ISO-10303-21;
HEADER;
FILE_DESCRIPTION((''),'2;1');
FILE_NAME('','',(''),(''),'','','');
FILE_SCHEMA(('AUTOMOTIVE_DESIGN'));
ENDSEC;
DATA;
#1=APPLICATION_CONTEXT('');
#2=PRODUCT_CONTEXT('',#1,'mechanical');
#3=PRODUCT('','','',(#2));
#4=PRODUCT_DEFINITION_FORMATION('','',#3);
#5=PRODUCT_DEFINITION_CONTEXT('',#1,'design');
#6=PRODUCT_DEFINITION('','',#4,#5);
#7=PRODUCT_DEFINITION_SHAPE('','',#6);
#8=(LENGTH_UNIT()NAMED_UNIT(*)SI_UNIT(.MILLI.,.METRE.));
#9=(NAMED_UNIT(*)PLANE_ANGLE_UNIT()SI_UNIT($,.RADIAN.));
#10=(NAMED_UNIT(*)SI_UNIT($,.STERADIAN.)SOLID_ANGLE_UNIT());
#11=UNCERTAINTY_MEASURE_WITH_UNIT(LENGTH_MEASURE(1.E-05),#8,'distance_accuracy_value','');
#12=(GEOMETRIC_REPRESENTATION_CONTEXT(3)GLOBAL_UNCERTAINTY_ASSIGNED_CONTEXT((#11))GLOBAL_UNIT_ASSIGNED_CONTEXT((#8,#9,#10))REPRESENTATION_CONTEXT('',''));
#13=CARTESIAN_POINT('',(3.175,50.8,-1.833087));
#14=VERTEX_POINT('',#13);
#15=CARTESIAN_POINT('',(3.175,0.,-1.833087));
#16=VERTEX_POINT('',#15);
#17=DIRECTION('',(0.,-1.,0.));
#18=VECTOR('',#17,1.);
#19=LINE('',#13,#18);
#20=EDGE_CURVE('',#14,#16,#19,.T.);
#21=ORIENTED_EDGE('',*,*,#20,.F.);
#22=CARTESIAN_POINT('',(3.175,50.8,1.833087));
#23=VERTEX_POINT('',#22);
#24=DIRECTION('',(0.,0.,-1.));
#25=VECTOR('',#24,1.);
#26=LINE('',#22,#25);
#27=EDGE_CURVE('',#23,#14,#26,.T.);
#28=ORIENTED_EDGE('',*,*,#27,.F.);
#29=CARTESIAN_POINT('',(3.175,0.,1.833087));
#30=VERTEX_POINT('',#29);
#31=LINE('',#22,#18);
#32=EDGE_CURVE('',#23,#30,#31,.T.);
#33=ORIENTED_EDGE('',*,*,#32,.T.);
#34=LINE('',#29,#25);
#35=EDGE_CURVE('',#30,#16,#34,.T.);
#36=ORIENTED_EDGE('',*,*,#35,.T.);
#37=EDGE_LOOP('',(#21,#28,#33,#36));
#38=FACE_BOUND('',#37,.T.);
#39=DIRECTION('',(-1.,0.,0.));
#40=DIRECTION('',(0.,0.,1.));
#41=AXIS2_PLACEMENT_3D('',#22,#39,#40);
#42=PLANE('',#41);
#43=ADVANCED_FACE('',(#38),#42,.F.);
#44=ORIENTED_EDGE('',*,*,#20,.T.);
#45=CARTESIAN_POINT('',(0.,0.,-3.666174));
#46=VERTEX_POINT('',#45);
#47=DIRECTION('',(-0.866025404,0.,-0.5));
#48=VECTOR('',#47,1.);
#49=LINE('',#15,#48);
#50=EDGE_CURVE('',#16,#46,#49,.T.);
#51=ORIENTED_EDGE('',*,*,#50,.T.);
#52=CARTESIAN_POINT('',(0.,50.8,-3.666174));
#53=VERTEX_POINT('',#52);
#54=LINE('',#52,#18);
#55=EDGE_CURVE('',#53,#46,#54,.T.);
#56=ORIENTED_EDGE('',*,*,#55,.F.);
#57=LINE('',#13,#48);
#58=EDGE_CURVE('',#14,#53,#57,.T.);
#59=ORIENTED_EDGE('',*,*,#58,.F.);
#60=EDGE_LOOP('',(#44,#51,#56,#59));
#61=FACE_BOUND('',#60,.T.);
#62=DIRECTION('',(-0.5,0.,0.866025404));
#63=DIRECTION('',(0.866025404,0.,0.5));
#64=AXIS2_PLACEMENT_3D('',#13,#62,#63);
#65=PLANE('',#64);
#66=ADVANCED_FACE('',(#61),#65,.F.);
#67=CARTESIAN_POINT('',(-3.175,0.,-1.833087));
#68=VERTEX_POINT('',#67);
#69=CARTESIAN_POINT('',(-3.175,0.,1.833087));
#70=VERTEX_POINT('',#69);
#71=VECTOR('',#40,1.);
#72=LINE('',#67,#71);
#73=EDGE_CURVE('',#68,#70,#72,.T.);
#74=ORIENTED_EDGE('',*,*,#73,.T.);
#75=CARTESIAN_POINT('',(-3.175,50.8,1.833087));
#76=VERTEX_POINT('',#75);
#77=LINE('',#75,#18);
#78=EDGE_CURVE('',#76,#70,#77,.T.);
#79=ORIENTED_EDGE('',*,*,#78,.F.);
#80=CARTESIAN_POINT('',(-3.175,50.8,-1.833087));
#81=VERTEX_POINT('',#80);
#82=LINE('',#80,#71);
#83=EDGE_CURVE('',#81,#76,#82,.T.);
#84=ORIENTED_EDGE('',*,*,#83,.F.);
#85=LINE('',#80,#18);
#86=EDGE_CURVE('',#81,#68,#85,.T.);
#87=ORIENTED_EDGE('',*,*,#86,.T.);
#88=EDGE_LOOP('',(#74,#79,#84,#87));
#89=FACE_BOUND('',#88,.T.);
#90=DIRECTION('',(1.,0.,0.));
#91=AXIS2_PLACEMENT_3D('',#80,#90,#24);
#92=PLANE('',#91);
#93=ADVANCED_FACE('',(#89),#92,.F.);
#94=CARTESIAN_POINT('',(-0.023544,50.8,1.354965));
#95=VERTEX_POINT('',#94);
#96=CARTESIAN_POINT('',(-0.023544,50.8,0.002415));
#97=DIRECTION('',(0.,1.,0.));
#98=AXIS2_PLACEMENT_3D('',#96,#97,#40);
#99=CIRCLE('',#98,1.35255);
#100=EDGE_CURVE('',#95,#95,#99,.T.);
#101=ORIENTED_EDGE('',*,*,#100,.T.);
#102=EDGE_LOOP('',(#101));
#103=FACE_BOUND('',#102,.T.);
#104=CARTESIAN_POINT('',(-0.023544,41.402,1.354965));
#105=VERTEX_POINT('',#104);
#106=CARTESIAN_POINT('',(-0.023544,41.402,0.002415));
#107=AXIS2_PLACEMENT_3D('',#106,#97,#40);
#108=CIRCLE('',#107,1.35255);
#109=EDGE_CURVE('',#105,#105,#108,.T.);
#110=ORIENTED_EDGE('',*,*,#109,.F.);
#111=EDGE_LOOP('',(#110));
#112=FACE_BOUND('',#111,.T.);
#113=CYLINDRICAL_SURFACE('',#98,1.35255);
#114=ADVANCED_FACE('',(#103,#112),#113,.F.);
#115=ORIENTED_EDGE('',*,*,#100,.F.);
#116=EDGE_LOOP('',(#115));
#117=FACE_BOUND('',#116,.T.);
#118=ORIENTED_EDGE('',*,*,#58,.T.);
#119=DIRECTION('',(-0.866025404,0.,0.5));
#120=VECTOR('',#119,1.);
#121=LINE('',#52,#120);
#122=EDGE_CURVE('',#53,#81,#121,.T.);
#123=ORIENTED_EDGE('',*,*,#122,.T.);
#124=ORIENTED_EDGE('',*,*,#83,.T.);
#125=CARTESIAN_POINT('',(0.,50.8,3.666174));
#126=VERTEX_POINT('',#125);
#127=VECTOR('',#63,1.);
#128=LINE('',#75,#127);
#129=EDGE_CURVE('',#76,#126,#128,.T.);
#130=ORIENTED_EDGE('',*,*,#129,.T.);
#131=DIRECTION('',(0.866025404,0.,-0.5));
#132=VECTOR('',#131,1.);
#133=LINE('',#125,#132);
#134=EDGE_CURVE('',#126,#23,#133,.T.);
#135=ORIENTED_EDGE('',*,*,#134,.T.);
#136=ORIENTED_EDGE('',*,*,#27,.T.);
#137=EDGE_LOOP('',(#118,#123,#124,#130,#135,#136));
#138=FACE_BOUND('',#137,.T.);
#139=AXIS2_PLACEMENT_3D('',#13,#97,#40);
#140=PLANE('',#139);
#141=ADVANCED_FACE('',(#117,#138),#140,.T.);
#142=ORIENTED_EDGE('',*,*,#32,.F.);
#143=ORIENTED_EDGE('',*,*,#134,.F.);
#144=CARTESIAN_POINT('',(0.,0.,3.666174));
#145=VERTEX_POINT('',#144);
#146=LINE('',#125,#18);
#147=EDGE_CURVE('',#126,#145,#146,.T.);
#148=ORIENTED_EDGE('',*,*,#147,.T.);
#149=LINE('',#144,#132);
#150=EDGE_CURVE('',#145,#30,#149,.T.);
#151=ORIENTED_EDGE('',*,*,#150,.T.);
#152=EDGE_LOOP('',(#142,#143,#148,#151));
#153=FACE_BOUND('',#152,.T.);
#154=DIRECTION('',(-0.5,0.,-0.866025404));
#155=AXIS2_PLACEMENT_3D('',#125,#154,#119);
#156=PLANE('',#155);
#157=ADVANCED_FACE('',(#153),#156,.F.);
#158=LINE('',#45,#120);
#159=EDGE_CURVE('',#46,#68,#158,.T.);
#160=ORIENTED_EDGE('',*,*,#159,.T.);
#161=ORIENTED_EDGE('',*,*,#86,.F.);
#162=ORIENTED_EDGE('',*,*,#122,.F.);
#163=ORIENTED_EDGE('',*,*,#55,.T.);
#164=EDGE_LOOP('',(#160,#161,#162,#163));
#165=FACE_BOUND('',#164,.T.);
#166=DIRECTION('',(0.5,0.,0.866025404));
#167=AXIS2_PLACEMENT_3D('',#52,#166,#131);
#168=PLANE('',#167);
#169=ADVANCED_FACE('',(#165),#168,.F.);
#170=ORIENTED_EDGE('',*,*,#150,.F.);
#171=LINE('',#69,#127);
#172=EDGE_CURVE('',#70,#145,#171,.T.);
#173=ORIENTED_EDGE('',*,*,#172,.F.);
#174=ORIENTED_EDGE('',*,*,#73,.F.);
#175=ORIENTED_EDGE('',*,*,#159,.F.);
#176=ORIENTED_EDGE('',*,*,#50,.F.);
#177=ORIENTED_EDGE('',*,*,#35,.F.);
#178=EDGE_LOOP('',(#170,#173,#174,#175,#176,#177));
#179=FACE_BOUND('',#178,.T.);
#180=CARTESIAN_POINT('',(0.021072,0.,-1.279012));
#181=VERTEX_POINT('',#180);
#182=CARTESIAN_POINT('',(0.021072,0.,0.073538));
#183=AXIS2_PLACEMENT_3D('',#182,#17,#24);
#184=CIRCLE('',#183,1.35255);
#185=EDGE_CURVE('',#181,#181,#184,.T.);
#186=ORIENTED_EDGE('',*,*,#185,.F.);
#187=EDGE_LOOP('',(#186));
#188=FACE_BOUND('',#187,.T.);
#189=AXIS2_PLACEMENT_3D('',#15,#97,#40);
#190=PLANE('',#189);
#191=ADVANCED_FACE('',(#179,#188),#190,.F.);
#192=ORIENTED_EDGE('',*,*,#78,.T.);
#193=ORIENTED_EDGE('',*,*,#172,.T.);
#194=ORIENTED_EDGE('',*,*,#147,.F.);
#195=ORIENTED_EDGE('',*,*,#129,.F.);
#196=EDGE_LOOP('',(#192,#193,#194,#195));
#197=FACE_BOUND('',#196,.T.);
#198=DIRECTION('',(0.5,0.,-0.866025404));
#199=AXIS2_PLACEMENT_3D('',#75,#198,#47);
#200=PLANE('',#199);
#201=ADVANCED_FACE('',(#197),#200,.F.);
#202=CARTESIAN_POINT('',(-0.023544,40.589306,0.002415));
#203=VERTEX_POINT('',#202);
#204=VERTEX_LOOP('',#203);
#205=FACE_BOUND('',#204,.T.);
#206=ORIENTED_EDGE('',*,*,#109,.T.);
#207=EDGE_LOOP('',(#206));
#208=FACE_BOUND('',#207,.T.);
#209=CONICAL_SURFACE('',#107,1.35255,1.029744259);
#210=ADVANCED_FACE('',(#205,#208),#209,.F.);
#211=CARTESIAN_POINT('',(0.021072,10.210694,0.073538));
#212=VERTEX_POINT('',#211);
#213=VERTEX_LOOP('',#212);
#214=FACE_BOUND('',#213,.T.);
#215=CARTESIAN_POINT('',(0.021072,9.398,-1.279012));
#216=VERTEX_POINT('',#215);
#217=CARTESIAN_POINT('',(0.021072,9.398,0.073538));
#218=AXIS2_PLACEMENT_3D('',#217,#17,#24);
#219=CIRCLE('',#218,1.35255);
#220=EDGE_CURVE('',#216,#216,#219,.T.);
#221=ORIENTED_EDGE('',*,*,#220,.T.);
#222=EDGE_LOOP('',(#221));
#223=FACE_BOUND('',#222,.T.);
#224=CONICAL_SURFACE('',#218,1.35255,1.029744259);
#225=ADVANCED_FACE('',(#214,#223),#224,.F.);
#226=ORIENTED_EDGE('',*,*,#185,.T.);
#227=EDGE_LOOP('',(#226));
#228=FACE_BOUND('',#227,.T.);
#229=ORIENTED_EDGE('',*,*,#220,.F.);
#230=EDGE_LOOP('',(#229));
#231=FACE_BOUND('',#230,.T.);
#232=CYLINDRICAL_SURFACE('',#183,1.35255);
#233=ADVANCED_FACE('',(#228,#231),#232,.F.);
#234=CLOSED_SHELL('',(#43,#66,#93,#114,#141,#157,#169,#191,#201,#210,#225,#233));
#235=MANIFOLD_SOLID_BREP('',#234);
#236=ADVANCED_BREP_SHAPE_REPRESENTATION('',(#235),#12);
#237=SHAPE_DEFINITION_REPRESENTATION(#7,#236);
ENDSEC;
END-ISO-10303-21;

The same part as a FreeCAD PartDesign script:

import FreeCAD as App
import Part
import Sketcher

V = App.Vector
Q = App.Units.Quantity

doc = App.newDocument("Part")
params = doc.addObject("Spreadsheet::Sheet", "Params")
for row, (alias, value) in enumerate([
    ("pad1_length", "2 in"),
    ("hole_diameter", "0.1065 in"),
    ("hole_depth", "0.37 in"),
    ("hole2_diameter", "0.1065 in"),
    ("hole2_depth", "0.37 in"),
], start=1):
    params.set(f"A{row}", alias)
    params.set(f"B{row}", "=" + value)
    params.setAlias(f"B{row}", alias)

body = doc.addObject("PartDesign::Body", "Body")

# Sketch on XZ plane
sketch1 = body.newObject("Sketcher::SketchObject", "Sketch")
sketch1.AttachmentSupport = (doc.getObject("XZ_Plane"), [""])
sketch1.MapMode = "FlatFace"
sketch1.addGeometry([
    Part.LineSegment(V(3.175, -1.833087, 0), V(0, -3.666174, 0)),  # 0
    Part.LineSegment(V(0, -3.666174, 0), V(-3.175, -1.833087, 0)),  # 1
    Part.LineSegment(V(-3.175, -1.833087, 0), V(-3.175, 1.833087, 0)),  # 2
    Part.LineSegment(V(-3.175, 1.833087, 0), V(0, 3.666174, 0)),  # 3
    Part.LineSegment(V(0, 3.666174, 0), V(3.175, 1.833087, 0)),  # 4
    Part.LineSegment(V(3.175, 1.833087, 0), V(3.175, -1.833087, 0)),  # 5
], False)
sketch1.addConstraint([
    Sketcher.Constraint("Coincident", 0, 2, 1, 1),
    Sketcher.Constraint("Coincident", 1, 2, 2, 1),
    Sketcher.Constraint("Coincident", 2, 2, 3, 1),
    Sketcher.Constraint("Coincident", 3, 2, 4, 1),
    Sketcher.Constraint("Coincident", 4, 2, 5, 1),
    Sketcher.Constraint("Coincident", 5, 2, 0, 1),
    Sketcher.Constraint("Vertical", 2),
    Sketcher.Constraint("Vertical", 5),
    Sketcher.Constraint("Symmetric", 0, 2, 3, 2, -1, 1),
    Sketcher.Constraint("Symmetric", 1, 2, 4, 2, -1, 1),
    Sketcher.Constraint("PointOnObject", 0, 2, -2),
    Sketcher.Constraint("Parallel", 0, 3),
    Sketcher.Constraint("Horizontal", 2, 2, 4, 2),
    Sketcher.Constraint("Angle", 0, Q("-150 deg")),
    Sketcher.Constraint("DistanceX", 2, 2, 4, 2, Q("0.25 in")),
    Sketcher.Constraint("DistanceY", 2, 1, 2, 2, 3.666174),
])
pad1 = body.newObject("PartDesign::Pad", "Pad")
pad1.Profile = sketch1
pad1.setExpression("Length", "Params.pad1_length")
pad1.Reversed = True

# Sketch on XZ plane
sketch2 = body.newObject("Sketcher::SketchObject", "Sketch001")
sketch2.AttachmentSupport = (doc.getObject("XZ_Plane"), [""])
sketch2.MapMode = "FlatFace"
sketch2.AttachmentOffset = App.Placement(V(0, 0, -2 * 25.4), App.Rotation())
sketch2.addGeometry(Part.Circle(V(-0.023544, 0.002415, 0), V(0, 0, 1), 1.35255), False)
sketch2.addConstraint([
    Sketcher.Constraint("Diameter", 0, Q("0.1065 in")),
    Sketcher.Constraint("DistanceX", 0, 3, -1, 1, 0.023544),
    Sketcher.Constraint("DistanceY", -1, 1, 0, 3, 0.002415),
])
doc.recompute()
hole = body.newObject("PartDesign::Hole", "Hole")
hole.Profile = sketch2
hole.ThreadType = "None"
hole.setExpression("Diameter", "Params.hole_diameter")
hole.DepthType = "Dimension"
hole.setExpression("Depth", "Params.hole_depth")
hole.DrillPoint = "Angled"
hole.DrillPointAngle = 118
hole.Reversed = True

# Sketch on XZ plane
sketch3 = body.newObject("Sketcher::SketchObject", "Sketch002")
sketch3.AttachmentSupport = (doc.getObject("XZ_Plane"), [""])
sketch3.MapMode = "FlatFace"
sketch3.addGeometry(Part.Circle(V(0.021072, 0.073538, 0), V(0, 0, 1), 1.35255), False)
sketch3.addConstraint([
    Sketcher.Constraint("Diameter", 0, Q("0.1065 in")),
    Sketcher.Constraint("DistanceY", -1, 1, 0, 3, 0.073538),
    Sketcher.Constraint("DistanceX", -1, 1, 0, 3, 0.021072),
])
doc.recompute()
hole2 = body.newObject("PartDesign::Hole", "Hole001")
hole2.Profile = sketch3
hole2.ThreadType = "None"
hole2.setExpression("Diameter", "Params.hole2_diameter")
hole2.DepthType = "Dimension"
hole2.setExpression("Depth", "Params.hole2_depth")
hole2.DrillPoint = "Angled"
hole2.DrillPointAngle = 118

doc.recompute()
